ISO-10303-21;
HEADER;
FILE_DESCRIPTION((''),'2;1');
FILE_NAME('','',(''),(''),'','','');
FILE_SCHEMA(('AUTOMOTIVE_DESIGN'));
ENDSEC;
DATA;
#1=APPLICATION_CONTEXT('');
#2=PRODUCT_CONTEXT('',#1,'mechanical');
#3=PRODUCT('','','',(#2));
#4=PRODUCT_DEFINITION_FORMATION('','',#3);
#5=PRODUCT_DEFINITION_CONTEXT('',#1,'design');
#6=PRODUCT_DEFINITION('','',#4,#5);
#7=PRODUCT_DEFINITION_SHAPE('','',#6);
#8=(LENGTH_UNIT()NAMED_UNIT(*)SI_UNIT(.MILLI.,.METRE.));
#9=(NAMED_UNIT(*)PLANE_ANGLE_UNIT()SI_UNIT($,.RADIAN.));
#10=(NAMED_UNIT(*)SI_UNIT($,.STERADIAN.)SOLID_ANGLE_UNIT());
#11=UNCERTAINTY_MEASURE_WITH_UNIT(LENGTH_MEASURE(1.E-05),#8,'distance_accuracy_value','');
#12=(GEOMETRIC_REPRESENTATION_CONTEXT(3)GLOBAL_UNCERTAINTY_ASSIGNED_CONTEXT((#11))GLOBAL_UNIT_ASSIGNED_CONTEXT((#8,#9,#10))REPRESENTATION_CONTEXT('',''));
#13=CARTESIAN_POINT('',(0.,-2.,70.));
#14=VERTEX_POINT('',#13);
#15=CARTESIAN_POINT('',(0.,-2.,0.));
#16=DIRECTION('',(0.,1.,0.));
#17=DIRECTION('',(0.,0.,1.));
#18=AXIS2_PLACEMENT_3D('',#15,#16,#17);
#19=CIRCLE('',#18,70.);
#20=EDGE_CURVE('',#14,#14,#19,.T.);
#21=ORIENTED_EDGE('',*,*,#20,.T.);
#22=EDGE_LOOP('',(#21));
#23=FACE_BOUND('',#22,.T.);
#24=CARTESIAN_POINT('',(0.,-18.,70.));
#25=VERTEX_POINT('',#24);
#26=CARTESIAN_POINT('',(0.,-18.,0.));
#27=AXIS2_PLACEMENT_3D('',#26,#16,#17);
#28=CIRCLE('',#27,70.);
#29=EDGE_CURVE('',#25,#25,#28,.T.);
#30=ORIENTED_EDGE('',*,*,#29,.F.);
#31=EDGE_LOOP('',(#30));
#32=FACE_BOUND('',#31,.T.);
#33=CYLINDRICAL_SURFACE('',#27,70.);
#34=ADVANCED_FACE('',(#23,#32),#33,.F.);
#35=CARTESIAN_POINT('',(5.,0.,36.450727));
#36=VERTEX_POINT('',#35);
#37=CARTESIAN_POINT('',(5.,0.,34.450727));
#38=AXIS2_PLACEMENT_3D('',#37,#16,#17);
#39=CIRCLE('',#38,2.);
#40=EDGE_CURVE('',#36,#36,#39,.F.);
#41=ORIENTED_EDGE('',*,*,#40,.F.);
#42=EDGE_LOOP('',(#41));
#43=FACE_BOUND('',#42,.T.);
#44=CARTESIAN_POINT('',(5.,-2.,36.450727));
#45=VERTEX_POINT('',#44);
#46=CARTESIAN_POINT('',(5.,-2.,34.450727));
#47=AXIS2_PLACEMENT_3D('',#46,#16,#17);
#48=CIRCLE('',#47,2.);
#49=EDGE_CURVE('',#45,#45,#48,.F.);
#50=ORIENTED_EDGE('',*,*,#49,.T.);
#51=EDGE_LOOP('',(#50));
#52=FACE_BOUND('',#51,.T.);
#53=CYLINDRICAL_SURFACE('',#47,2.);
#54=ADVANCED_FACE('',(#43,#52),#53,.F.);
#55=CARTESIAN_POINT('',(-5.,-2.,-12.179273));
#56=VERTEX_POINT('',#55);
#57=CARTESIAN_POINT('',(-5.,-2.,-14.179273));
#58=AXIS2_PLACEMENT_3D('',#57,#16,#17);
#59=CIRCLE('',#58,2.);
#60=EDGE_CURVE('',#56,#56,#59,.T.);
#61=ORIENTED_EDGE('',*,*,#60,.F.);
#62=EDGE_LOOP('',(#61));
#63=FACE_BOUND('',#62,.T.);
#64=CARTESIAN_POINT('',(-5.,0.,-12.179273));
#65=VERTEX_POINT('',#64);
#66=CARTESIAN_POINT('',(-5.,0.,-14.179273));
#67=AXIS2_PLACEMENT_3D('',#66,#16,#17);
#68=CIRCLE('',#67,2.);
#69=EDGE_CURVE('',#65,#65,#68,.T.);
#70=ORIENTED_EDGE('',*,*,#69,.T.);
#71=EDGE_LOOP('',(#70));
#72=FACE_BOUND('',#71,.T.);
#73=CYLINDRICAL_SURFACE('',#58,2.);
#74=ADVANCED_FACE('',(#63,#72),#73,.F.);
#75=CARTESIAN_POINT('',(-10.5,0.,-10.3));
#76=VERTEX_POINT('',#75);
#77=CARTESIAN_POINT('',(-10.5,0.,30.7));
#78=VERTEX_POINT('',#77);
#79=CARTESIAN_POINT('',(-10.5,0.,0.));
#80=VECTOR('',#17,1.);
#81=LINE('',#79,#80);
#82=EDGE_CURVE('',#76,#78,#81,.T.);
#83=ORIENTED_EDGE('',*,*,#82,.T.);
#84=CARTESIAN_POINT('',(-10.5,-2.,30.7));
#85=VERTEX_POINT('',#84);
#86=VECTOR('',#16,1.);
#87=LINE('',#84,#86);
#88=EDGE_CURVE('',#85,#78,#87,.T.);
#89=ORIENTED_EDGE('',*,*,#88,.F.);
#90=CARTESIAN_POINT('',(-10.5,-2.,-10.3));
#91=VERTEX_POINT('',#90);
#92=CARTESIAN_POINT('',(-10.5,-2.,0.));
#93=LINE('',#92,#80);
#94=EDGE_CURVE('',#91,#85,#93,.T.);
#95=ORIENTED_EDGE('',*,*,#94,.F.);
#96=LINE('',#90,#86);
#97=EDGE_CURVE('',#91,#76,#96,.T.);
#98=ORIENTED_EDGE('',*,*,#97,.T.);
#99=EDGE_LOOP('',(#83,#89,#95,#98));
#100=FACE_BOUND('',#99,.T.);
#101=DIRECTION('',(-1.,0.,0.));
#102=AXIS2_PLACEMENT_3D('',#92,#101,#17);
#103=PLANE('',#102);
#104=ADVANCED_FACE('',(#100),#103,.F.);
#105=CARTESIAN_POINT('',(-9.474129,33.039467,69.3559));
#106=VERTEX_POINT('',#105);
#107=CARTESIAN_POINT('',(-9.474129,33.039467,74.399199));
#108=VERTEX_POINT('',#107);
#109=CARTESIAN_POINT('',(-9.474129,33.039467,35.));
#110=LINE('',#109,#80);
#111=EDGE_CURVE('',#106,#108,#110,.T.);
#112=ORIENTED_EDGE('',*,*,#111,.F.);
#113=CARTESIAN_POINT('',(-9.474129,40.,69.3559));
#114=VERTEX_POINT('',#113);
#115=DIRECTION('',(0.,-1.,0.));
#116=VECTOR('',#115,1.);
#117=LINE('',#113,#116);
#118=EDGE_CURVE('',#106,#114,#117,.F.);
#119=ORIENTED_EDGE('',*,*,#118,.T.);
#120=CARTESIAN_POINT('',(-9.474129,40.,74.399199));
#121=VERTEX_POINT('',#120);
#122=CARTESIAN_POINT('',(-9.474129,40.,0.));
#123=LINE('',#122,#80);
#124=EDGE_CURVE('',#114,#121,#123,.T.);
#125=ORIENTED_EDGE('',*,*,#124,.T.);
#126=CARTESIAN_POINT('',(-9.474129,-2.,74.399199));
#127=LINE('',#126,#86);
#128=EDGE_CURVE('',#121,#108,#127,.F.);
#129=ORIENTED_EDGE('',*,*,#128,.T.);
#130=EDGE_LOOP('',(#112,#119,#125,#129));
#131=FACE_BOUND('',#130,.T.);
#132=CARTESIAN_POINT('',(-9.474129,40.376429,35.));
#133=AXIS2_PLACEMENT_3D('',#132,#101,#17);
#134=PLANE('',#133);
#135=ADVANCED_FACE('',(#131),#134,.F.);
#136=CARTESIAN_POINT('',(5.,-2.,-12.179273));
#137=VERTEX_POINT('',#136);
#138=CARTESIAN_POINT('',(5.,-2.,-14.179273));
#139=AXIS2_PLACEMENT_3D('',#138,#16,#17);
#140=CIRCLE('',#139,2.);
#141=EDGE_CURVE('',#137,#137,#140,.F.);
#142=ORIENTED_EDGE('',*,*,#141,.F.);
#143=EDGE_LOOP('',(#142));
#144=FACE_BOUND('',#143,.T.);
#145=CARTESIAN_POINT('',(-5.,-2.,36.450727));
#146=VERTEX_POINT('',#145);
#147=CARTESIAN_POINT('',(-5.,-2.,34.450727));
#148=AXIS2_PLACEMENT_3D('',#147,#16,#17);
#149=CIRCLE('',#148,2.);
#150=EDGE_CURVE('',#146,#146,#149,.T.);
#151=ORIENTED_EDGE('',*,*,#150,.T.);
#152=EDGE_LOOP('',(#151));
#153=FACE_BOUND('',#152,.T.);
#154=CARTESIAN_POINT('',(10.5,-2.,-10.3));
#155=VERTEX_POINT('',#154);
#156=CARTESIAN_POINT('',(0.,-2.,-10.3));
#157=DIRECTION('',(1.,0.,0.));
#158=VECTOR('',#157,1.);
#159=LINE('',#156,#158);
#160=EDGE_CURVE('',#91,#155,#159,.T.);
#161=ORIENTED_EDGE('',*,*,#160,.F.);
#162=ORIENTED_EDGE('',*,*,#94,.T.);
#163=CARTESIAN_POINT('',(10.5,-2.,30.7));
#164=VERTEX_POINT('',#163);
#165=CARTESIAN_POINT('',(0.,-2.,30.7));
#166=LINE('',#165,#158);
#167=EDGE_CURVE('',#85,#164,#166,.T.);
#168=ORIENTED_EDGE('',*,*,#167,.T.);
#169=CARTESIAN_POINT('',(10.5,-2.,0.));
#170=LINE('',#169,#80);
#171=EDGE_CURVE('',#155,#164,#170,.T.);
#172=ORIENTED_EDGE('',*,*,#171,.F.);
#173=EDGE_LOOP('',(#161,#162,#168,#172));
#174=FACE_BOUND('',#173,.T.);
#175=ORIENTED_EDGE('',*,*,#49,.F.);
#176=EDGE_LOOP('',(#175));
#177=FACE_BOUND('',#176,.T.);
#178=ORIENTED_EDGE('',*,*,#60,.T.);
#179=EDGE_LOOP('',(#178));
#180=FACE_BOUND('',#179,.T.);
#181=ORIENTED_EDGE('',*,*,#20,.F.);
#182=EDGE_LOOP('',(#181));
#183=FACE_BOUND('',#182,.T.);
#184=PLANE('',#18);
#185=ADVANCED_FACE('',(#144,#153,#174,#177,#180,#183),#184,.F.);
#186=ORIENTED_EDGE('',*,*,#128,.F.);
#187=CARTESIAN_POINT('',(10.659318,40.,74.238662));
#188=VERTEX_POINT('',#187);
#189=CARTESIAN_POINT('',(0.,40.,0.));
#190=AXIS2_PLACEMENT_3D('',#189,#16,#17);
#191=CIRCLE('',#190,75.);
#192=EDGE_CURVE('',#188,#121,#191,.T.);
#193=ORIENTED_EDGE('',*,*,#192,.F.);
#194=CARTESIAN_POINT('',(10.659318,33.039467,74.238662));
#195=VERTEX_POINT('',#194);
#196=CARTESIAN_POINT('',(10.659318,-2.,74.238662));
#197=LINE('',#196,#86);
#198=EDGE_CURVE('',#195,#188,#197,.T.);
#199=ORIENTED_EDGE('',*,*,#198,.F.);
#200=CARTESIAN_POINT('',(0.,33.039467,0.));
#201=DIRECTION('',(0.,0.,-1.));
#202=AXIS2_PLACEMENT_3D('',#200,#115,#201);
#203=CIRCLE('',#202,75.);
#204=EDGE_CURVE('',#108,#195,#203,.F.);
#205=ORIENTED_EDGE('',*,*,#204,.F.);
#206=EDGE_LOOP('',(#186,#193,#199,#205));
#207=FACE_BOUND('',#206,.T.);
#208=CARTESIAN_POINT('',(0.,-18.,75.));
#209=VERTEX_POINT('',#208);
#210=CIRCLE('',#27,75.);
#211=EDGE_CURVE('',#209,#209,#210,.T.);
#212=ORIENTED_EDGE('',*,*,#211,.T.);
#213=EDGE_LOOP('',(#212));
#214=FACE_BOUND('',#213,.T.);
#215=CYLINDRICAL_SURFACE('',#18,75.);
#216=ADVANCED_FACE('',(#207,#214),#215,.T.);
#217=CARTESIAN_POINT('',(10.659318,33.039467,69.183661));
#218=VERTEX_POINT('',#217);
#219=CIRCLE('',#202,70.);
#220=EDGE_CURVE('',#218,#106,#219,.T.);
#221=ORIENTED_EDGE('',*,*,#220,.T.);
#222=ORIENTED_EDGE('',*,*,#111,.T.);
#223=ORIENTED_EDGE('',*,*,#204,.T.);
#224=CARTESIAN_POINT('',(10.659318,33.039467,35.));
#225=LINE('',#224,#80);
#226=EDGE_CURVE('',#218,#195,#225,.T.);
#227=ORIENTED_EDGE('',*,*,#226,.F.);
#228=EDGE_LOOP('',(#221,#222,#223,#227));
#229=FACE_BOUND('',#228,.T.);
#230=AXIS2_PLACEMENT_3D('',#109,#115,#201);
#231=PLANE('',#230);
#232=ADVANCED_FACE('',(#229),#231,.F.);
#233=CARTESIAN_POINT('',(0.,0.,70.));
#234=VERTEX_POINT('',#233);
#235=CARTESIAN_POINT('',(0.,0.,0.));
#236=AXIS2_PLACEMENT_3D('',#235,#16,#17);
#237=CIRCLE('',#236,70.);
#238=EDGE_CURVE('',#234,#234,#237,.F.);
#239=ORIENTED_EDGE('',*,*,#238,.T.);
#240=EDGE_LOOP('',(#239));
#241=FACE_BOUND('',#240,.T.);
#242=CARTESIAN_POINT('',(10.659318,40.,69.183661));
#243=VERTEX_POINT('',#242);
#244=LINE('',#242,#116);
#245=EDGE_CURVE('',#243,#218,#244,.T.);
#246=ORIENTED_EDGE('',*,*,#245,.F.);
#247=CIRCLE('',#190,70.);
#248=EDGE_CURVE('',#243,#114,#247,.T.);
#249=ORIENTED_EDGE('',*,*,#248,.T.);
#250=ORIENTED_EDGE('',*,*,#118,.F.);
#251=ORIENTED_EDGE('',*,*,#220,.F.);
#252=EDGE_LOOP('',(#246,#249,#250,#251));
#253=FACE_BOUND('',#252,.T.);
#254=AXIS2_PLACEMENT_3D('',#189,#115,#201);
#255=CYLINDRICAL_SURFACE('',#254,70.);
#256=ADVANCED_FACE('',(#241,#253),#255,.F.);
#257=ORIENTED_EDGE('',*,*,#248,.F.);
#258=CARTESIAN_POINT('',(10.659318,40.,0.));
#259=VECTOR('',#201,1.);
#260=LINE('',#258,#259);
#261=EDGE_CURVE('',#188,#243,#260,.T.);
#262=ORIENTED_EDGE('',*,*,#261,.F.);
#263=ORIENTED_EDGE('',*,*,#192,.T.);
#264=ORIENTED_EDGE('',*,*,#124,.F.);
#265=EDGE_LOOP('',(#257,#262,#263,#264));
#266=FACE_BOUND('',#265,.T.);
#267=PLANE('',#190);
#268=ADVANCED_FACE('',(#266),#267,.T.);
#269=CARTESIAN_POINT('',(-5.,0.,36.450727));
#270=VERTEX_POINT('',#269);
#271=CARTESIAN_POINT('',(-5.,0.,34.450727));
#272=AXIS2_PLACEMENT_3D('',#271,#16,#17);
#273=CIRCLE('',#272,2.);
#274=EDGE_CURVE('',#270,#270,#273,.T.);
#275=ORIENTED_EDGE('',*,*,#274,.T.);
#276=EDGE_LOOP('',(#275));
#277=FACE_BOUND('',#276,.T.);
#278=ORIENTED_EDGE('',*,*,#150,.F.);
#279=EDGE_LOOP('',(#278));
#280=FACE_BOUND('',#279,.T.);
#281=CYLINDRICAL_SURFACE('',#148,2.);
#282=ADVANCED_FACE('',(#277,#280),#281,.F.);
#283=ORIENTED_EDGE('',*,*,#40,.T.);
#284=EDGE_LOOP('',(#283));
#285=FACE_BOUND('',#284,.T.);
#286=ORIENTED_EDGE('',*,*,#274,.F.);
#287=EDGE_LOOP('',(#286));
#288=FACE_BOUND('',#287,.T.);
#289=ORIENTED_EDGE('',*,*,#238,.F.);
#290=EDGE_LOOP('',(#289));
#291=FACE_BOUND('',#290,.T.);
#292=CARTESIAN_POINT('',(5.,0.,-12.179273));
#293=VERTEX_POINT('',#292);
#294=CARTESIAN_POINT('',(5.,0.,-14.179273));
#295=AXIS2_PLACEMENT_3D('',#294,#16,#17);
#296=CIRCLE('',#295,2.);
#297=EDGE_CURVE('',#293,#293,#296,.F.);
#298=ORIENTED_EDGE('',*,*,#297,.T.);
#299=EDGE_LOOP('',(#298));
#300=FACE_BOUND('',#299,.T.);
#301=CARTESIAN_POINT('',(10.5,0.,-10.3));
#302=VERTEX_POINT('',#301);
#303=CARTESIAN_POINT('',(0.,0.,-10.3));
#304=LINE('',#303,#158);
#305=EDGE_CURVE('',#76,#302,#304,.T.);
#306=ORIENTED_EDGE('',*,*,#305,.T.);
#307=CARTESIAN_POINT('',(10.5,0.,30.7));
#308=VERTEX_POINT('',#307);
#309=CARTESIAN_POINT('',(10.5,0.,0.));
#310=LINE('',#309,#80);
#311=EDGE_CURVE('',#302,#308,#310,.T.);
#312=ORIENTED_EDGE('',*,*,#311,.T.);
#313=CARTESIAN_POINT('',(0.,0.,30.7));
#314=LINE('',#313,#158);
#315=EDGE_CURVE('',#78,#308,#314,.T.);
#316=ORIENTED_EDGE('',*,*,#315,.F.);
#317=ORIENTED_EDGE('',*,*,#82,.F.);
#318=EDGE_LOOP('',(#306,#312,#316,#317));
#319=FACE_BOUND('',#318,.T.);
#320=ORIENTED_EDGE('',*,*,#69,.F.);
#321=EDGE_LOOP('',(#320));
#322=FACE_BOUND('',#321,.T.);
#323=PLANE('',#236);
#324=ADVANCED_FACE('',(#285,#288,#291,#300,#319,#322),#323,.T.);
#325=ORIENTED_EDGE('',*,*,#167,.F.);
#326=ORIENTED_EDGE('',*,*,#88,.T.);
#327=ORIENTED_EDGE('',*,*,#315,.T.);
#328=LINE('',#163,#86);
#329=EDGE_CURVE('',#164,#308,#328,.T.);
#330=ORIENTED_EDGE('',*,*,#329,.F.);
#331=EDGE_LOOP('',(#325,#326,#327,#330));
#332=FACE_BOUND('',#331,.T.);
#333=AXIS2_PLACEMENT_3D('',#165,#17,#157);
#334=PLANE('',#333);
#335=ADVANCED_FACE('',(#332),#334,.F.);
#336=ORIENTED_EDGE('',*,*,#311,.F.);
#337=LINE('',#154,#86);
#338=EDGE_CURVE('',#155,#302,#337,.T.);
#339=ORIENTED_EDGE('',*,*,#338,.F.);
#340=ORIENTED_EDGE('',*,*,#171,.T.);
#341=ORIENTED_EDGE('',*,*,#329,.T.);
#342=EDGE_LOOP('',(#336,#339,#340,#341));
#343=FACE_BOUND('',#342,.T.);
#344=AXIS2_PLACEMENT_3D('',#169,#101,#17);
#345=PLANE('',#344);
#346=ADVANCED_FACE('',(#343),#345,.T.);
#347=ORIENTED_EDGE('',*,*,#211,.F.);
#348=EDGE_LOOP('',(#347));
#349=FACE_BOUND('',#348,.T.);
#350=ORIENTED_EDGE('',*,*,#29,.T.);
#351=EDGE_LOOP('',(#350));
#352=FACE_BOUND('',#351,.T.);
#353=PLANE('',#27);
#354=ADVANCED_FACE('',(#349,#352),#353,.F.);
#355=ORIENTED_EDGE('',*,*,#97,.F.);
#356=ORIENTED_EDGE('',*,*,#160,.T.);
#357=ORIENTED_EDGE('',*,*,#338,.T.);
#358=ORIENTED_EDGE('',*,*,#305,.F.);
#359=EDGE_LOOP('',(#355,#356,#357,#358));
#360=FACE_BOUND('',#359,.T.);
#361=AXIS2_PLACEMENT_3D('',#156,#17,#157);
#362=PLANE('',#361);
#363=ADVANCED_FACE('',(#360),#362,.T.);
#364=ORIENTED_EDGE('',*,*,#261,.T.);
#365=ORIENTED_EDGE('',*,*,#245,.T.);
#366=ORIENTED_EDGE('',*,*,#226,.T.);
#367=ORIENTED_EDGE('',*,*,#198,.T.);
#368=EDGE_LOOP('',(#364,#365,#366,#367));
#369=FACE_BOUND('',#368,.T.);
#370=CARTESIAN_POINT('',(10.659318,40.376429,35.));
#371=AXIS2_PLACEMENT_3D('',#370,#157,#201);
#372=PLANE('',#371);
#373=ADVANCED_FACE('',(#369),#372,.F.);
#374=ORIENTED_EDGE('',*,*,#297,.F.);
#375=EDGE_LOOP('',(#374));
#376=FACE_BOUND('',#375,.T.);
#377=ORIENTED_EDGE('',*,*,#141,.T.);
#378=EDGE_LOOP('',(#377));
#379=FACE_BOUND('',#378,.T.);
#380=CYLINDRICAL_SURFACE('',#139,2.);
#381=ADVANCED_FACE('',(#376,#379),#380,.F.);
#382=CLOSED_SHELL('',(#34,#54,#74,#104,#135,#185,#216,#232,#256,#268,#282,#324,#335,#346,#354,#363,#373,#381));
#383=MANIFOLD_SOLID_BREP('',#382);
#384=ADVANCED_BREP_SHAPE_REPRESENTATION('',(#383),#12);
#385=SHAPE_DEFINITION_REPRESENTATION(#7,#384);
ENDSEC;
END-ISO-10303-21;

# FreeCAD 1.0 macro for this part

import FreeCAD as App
import Part
import Sketcher
Q = App.Units.Quantity

doc = App.newDocument("Part")
params = doc.addObject("Spreadsheet::Sheet", "Params")
for row, (alias, value) in enumerate([
    ("sketch1_diameter", "150 mm"),
    ("sketch1_diameter2", "4 mm"),
    ("sketch1_width", "21 mm"),
    ("sketch1_height", "41 mm"),
    ("pad1_length", "2 mm"),
    ("sketch2_diameter", "150 mm"),
    ("sketch2_diameter2", "140 mm"),
    ("pad2_length", "40 mm"),
    ("pocket1_length", "40 mm"),
    ("sketch4_diameter", "150 mm"),
    ("sketch4_diameter2", "140 mm"),
    ("pad3_length", "18 mm"),
], start=1):
    params.set(f"A{row}", alias)
    params.set(f"B{row}", "=" + value)
    params.setAlias(f"B{row}", alias)

body = doc.addObject("PartDesign::Body", "Body")

# Sketch on XZ plane
sketch1 = body.newObject("Sketcher::SketchObject", "Sketch")
sketch1.AttachmentSupport = (doc.getObject("XZ_Plane"), [""])
sketch1.MapMode = "FlatFace"
sketch1.addGeometry(Part.Circle(App.Vector(0, 0, 0), App.Vector(0, 0, 1), 75), False)
sketch1.addGeometry(Part.Circle(App.Vector(5, -14.2, 0), App.Vector(0, 0, 1), 2), False)
sketch1.addGeometry(Part.Circle(App.Vector(-5, 34.5, 0), App.Vector(0, 0, 1), 2), False)
sketch1.addGeometry(Part.Circle(App.Vector(5, 34.5, 0), App.Vector(0, 0, 1), 2), False)
sketch1.addGeometry(Part.LineSegment(App.Vector(10.5, 30.7, 0), App.Vector(-10.5, 30.7, 0)), False)
sketch1.addGeometry(Part.LineSegment(App.Vector(-10.5, 30.7, 0), App.Vector(-10.5, -10.3, 0)), False)
sketch1.addGeometry(Part.LineSegment(App.Vector(-10.5, -10.3, 0), App.Vector(10.5, -10.3, 0)), False)
sketch1.addGeometry(Part.LineSegment(App.Vector(10.5, -10.3, 0), App.Vector(10.5, 30.7, 0)), False)
sketch1.addGeometry(Part.Circle(App.Vector(-5, -14.2, 0), App.Vector(0, 0, 1), 2), False)
sketch1.addConstraint(Sketcher.Constraint("Coincident", 4, 2, 5, 1))
sketch1.addConstraint(Sketcher.Constraint("Coincident", 5, 2, 6, 1))
sketch1.addConstraint(Sketcher.Constraint("Coincident", 6, 2, 7, 1))
sketch1.addConstraint(Sketcher.Constraint("Coincident", 7, 2, 4, 1))
sketch1.addConstraint(Sketcher.Constraint("Horizontal", 4))
sketch1.addConstraint(Sketcher.Constraint("Vertical", 5))
sketch1.addConstraint(Sketcher.Constraint("Horizontal", 6))
sketch1.addConstraint(Sketcher.Constraint("Vertical", 7))
sketch1.addConstraint(Sketcher.Constraint("Coincident", 0, 3, -1, 1))
sketch1.addConstraint(Sketcher.Constraint("Equal", 1, 2))
sketch1.addConstraint(Sketcher.Constraint("Equal", 2, 3))
sketch1.addConstraint(Sketcher.Constraint("Equal", 3, 8))
sketch1.addConstraint(Sketcher.Constraint("Symmetric", 2, 3, 3, 3, -2))
sketch1.addConstraint(Sketcher.Constraint("Symmetric", 1, 3, 8, 3, -2))
sketch1.addConstraint(Sketcher.Constraint("Vertical", 1, 3, 3, 3))
sketch1.addConstraint(Sketcher.Constraint("Diameter", 0, Q("150 mm")))
sketch1.addConstraint(Sketcher.Constraint("Diameter", 1, Q("4 mm")))
sketch1.addConstraint(Sketcher.Constraint("DistanceX", 4, 2, 4, 1, Q("21 mm")))
sketch1.addConstraint(Sketcher.Constraint("DistanceY", 5, 2, 5, 1, Q("41 mm")))
sketch1.addConstraint(Sketcher.Constraint("DistanceX", -1, 1, 1, 3, Q("5 mm")))
sketch1.addConstraint(Sketcher.Constraint("DistanceX", 4, 2, -1, 1, Q("10.5 mm")))
sketch1.addConstraint(Sketcher.Constraint("DistanceY", -1, 1, 4, 2, Q("30.7 mm")))
sketch1.addConstraint(Sketcher.Constraint("DistanceY", 1, 3, 2, 3, Q("48.63 mm")))
sketch1.addConstraint(Sketcher.Constraint("DistanceY", 1, 3, -1, 1, Q("14.179273 mm")))
sketch1.setExpression("Constraints[15]", "Params.sketch1_diameter")
sketch1.setExpression("Constraints[16]", "Params.sketch1_diameter2")
sketch1.setExpression("Constraints[17]", "Params.sketch1_width")
sketch1.setExpression("Constraints[18]", "Params.sketch1_height")
pad1 = body.newObject("PartDesign::Pad", "Pad")
pad1.Profile = sketch1
pad1.setExpression("Length", "Params.pad1_length")

# Sketch on XZ plane
sketch2 = body.newObject("Sketcher::SketchObject", "Sketch001")
sketch2.AttachmentSupport = (doc.getObject("XZ_Plane"), [""])
sketch2.MapMode = "FlatFace"
sketch2.AttachmentOffset = App.Placement(App.Vector(0, 0, -40), App.Rotation())
sketch2.addGeometry(Part.Circle(App.Vector(0, 0, 0), App.Vector(0, 0, 1), 75), False)
sketch2.addGeometry(Part.Circle(App.Vector(0, 0, 0), App.Vector(0, 0, 1), 70), False)
sketch2.addConstraint(Sketcher.Constraint("Coincident", 0, 3, -1, 1))
sketch2.addConstraint(Sketcher.Constraint("Coincident", 1, 3, -1, 1))
sketch2.addConstraint(Sketcher.Constraint("Diameter", 0, Q("150 mm")))
sketch2.addConstraint(Sketcher.Constraint("Diameter", 1, Q("140 mm")))
sketch2.setExpression("Constraints[2]", "Params.sketch2_diameter")
sketch2.setExpression("Constraints[3]", "Params.sketch2_diameter2")
pad2 = body.newObject("PartDesign::Pad", "Pad001")
pad2.Profile = sketch2
pad2.setExpression("Length", "Params.pad2_length")

# Sketch on XY plane
sketch3 = body.newObject("Sketcher::SketchObject", "Sketch002")
sketch3.AttachmentSupport = (doc.getObject("XY_Plane"), [""])
sketch3.MapMode = "FlatFace"
sketch3.AttachmentOffset = App.Placement(App.Vector(0, 0, 75), App.Rotation())
sketch3.addGeometry(Part.LineSegment(App.Vector(-9, 40, 0), App.Vector(-9, 33, 0)), False)
sketch3.addGeometry(Part.LineSegment(App.Vector(-9, 33, 0), App.Vector(11, 33, 0)), False)
sketch3.addGeometry(Part.LineSegment(App.Vector(11, 33, 0), App.Vector(11, 40, 0)), False)
sketch3.addGeometry(Part.LineSegment(App.Vector(11, 40, 0), App.Vector(-9, 40, 0)), False)
sketch3.addConstraint(Sketcher.Constraint("Coincident", 0, 2, 1, 1))
sketch3.addConstraint(Sketcher.Constraint("Coincident", 1, 2, 2, 1))
sketch3.addConstraint(Sketcher.Constraint("Coincident", 2, 2, 3, 1))
sketch3.addConstraint(Sketcher.Constraint("Coincident", 3, 2, 0, 1))
sketch3.addConstraint(Sketcher.Constraint("Vertical", 0))
sketch3.addConstraint(Sketcher.Constraint("Horizontal", 1))
sketch3.addConstraint(Sketcher.Constraint("Vertical", 2))
sketch3.addConstraint(Sketcher.Constraint("Horizontal", 3))
sketch3.addConstraint(Sketcher.Constraint("DistanceY", 0, 2, 0, 1, Q("7.336962 mm")))
sketch3.addConstraint(Sketcher.Constraint("DistanceX", 1, 1, 1, 2, Q("20.133447 mm")))
sketch3.addConstraint(Sketcher.Constraint("DistanceX", 0, 2, -1, 1, Q("9.474129 mm")))
sketch3.addConstraint(Sketcher.Constraint("DistanceY", -1, 1, 2, 2, Q("40.376429 mm")))
pocket1 = body.newObject("PartDesign::Pocket", "Pocket")
pocket1.Profile = sketch3
pocket1.setExpression("Length", "Params.pocket1_length")

# Sketch on XZ plane
sketch4 = body.newObject("Sketcher::SketchObject", "Sketch003")
sketch4.AttachmentSupport = (doc.getObject("XZ_Plane"), [""])
sketch4.MapMode = "FlatFace"
sketch4.addGeometry(Part.Circle(App.Vector(0, 0, 0), App.Vector(0, 0, 1), 75), False)
sketch4.addGeometry(Part.Circle(App.Vector(0, 0, 0), App.Vector(0, 0, 1), 70), False)
sketch4.addConstraint(Sketcher.Constraint("Coincident", 0, 3, -1, 1))
sketch4.addConstraint(Sketcher.Constraint("Coincident", 1, 3, -1, 1))
sketch4.addConstraint(Sketcher.Constraint("Diameter", 0, Q("150 mm")))
sketch4.addConstraint(Sketcher.Constraint("Diameter", 1, Q("140 mm")))
sketch4.setExpression("Constraints[2]", "Params.sketch4_diameter")
sketch4.setExpression("Constraints[3]", "Params.sketch4_diameter2")
pad3 = body.newObject("PartDesign::Pad", "Pad002")
pad3.Profile = sketch4
pad3.setExpression("Length", "Params.pad3_length")

doc.recompute()
